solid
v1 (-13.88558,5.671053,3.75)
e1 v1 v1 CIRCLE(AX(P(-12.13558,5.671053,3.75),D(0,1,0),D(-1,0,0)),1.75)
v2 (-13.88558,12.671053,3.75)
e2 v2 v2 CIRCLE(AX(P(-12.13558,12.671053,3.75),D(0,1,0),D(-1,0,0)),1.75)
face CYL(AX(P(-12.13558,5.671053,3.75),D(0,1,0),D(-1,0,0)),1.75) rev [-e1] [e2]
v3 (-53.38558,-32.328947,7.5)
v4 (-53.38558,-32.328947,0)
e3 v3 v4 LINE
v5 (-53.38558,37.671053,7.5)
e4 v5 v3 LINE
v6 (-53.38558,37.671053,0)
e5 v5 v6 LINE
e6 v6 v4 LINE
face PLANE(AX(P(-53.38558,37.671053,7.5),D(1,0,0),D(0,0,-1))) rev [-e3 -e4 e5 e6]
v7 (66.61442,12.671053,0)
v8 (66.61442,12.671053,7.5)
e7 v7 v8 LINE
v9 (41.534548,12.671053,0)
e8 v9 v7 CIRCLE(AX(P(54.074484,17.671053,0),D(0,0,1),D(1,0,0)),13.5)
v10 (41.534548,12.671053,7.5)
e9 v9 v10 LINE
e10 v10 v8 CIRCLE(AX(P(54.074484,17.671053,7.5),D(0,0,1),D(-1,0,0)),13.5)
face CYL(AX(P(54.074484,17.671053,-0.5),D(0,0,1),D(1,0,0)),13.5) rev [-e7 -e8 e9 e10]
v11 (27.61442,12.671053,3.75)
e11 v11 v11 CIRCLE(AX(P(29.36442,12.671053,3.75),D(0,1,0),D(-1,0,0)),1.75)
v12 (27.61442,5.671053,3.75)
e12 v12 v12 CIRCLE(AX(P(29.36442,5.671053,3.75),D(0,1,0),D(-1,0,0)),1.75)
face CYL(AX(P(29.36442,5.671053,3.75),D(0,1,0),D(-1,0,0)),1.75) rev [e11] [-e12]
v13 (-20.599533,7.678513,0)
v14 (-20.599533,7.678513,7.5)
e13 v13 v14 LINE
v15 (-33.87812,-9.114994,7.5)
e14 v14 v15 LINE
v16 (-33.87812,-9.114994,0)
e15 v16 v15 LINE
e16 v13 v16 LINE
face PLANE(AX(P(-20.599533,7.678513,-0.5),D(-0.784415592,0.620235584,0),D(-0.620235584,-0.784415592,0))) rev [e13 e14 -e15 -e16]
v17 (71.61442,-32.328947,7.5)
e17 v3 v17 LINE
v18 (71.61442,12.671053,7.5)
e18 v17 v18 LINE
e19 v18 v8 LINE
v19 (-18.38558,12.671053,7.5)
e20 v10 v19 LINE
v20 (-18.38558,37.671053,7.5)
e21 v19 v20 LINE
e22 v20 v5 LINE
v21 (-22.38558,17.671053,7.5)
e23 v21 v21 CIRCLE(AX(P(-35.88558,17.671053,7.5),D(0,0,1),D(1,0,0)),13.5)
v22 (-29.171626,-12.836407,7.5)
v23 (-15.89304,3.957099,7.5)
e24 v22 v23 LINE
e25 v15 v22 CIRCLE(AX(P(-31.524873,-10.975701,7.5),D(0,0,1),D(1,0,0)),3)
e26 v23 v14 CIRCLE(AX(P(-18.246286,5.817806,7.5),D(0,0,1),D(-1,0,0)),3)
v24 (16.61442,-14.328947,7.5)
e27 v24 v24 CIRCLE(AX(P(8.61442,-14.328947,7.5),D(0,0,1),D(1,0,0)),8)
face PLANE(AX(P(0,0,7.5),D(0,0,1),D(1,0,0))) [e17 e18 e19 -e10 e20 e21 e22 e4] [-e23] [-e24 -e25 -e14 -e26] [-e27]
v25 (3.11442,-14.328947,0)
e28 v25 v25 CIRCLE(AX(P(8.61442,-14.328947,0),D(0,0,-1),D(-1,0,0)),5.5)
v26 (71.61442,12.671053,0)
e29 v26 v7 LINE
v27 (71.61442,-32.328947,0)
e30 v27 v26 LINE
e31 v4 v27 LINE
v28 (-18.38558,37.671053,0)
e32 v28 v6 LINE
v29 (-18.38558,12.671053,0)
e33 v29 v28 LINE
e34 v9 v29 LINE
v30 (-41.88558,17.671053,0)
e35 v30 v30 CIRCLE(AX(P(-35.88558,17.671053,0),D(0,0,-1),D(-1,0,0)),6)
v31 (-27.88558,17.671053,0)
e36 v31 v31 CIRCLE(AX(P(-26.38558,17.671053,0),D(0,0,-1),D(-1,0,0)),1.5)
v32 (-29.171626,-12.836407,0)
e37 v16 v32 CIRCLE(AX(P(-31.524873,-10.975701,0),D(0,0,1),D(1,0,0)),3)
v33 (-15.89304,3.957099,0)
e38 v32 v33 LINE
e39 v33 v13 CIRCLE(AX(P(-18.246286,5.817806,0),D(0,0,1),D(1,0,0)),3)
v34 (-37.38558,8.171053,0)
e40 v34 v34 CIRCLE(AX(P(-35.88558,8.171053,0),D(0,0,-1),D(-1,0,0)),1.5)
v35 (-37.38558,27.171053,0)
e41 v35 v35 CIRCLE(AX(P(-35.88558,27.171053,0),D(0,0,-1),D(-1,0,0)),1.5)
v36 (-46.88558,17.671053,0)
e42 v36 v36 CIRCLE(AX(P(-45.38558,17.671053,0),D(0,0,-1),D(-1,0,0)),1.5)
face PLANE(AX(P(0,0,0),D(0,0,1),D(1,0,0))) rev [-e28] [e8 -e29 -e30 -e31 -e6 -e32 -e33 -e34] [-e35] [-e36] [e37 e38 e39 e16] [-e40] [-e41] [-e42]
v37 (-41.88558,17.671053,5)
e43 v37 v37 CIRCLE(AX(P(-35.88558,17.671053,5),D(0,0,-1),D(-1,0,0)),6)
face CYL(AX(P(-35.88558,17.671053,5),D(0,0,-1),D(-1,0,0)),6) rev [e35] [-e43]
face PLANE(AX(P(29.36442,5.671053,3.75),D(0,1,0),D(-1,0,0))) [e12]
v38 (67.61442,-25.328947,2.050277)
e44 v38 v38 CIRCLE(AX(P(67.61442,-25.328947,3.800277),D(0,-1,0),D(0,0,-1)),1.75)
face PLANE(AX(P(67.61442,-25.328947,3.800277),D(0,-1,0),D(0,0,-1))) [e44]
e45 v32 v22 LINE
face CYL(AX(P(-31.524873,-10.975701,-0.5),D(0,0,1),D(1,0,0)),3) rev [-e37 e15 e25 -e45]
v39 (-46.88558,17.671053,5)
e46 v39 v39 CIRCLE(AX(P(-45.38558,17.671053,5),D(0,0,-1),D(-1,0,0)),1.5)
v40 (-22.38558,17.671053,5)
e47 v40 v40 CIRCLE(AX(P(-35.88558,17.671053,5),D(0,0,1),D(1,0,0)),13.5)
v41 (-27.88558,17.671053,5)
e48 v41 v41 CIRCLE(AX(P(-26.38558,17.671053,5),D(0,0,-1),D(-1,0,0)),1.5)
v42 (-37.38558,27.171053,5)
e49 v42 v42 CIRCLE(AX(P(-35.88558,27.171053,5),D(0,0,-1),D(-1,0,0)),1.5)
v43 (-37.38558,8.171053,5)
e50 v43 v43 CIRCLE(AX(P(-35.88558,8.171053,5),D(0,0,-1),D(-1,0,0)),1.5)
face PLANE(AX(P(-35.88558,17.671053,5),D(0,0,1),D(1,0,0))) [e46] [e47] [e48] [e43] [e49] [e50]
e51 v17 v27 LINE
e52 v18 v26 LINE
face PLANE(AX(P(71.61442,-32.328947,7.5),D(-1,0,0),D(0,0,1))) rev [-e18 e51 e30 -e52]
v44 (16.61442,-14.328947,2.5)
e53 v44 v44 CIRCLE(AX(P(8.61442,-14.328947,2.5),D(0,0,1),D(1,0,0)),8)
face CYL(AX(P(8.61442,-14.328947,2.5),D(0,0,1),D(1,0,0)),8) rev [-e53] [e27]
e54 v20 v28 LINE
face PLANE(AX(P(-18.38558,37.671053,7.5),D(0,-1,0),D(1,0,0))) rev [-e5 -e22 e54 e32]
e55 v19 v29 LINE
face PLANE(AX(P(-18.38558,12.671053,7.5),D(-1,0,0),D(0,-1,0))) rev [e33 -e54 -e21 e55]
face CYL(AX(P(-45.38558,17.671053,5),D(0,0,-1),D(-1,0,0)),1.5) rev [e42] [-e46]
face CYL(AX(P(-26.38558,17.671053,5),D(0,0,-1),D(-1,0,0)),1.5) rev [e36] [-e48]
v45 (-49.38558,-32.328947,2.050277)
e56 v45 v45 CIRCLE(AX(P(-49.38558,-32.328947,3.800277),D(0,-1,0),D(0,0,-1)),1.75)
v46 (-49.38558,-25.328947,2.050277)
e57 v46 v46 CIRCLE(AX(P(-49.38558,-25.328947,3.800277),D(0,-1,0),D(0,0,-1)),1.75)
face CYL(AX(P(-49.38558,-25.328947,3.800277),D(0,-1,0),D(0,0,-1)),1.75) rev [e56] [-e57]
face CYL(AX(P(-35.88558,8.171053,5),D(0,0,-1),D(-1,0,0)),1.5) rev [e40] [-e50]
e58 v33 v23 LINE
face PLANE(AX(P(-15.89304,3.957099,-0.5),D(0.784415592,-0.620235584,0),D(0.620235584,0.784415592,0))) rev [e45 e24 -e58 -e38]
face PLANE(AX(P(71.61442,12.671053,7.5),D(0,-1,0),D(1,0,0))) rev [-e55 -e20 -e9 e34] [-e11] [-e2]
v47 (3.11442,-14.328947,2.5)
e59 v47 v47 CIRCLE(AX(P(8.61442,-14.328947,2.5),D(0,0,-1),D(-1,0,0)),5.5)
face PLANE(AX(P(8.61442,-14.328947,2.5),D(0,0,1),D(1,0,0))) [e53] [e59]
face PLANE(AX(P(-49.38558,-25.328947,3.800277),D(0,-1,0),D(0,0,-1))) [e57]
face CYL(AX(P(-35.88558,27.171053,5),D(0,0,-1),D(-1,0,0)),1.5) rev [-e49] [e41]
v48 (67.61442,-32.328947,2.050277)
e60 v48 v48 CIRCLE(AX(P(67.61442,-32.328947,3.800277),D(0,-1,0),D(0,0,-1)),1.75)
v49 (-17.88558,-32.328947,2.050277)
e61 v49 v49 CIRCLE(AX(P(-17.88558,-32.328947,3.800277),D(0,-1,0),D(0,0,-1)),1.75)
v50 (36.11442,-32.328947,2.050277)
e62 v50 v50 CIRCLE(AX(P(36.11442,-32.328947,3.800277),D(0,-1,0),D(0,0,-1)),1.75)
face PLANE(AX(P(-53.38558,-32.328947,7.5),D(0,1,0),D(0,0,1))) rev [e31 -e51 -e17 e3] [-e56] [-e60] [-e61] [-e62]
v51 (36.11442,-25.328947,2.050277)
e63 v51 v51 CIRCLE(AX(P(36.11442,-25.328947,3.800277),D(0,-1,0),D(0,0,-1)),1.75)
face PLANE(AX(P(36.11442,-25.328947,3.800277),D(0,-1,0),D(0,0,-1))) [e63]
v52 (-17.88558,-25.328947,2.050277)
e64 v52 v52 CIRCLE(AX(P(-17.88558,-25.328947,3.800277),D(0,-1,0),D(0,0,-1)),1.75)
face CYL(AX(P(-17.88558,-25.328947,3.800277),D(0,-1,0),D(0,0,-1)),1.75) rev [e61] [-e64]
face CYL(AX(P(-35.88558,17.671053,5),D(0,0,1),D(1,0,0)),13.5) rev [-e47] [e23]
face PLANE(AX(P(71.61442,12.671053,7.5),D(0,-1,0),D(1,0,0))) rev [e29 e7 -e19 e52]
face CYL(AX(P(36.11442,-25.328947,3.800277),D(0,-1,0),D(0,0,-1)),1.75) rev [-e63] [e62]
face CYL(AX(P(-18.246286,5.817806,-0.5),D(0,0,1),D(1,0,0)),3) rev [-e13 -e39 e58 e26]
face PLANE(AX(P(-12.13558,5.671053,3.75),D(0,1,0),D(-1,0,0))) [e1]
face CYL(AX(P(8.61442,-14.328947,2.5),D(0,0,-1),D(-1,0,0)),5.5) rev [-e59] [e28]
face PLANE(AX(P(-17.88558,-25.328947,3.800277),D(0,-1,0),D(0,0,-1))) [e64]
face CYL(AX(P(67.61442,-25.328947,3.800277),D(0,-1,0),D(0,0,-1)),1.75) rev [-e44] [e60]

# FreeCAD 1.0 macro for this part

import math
import FreeCAD as App
import Part
import Sketcher

V = App.Vector
Q = App.Units.Quantity

doc = App.newDocument("Part")
body = doc.addObject("PartDesign::Body", "Body")

sketch1 = body.newObject("Sketcher::SketchObject", "Sketch")
sketch1.AttachmentSupport = (doc.getObject("XY_Plane"), [""])
sketch1.MapMode = "FlatFace"
sketch1.addGeometry([
    Part.LineSegment(V(-53, 38, 0), V(-53, -32, 0)),
    Part.LineSegment(V(-53, -32, 0), V(72, -32, 0)),
    Part.LineSegment(V(72, -32, 0), V(72, 13, 0)),
    Part.LineSegment(V(72, 13, 0), V(-18, 13, 0)),
    Part.LineSegment(V(-18, 13, 0), V(-18, 38, 0)),
    Part.LineSegment(V(-18, 38, 0), V(-53, 38, 0)),
], False)
sketch1.addConstraint([
    Sketcher.Constraint("Coincident", 0, 2, 1, 1),
    Sketcher.Constraint("Coincident", 1, 2, 2, 1),
    Sketcher.Constraint("Coincident", 2, 2, 3, 1),
    Sketcher.Constraint("Coincident", 3, 2, 4, 1),
    Sketcher.Constraint("Coincident", 4, 2, 5, 1),
    Sketcher.Constraint("Coincident", 5, 2, 0, 1),
    Sketcher.Constraint("Vertical", 0),
    Sketcher.Constraint("Horizontal", 1),
    Sketcher.Constraint("Vertical", 2),
    Sketcher.Constraint("Horizontal", 3),
    Sketcher.Constraint("Vertical", 4),
    Sketcher.Constraint("Horizontal", 5),
    Sketcher.Constraint("DistanceX", 1, 1, 1, 2, Q("125 mm")),
    Sketcher.Constraint("DistanceX", 3, 2, 3, 1, Q("90 mm")),
    Sketcher.Constraint("DistanceY", 0, 2, 0, 1, Q("70 mm")),
    Sketcher.Constraint("DistanceY", 2, 1, 2, 2, Q("45 mm")),
    Sketcher.Constraint("DistanceX", 0, 2, -1, 1, Q("53.38558 mm")),
    Sketcher.Constraint("DistanceY", 0, 2, -1, 1, Q("32.328947 mm")),
])
pad1 = body.newObject("PartDesign::Pad", "Pad")
pad1.Profile = sketch1
pad1.Length = 7.5

sketch2 = body.newObject("Sketcher::SketchObject", "Sketch001")
sketch2.AttachmentSupport = (doc.getObject("XY_Plane"), [""])
sketch2.MapMode = "FlatFace"
sketch2.AttachmentOffset = App.Placement(V(0, 0, 7.5), App.Rotation())
sketch2.addGeometry([
    Part.LineSegment(V(66.6, 12.7, 0), V(41.5, 12.7, 0)),
    Part.ArcOfCircle(Part.Circle(V(54.1, 17.7, 0), V(0, 0, 1), 13.5), math.radians(-158), math.radians(-22)),
    Part.LineSegment(V(-20.6, 7.7, 0), V(-33.9, -9.1, 0)),
    Part.ArcOfCircle(Part.Circle(V(-31.5, -11, 0), V(0, 0, 1), 3), math.radians(142), math.radians(322)),
    Part.LineSegment(V(-29.2, -12.8, 0), V(-15.9, 4, 0)),
    Part.ArcOfCircle(Part.Circle(V(-18.2, 5.8, 0), V(0, 0, 1), 3), math.radians(-38), math.radians(142)),
], False)
sketch2.addConstraint([
    Sketcher.Constraint("Coincident", 0, 1, 1, 2),
    Sketcher.Constraint("Coincident", 1, 1, 0, 2),
    Sketcher.Constraint("Tangent", 2, 2, 3, 1),
    Sketcher.Constraint("Tangent", 3, 2, 4, 1),
    Sketcher.Constraint("Tangent", 4, 2, 5, 1),
    Sketcher.Constraint("Tangent", 5, 2, 2, 1),
    Sketcher.Constraint("Horizontal", 0),
    Sketcher.Constraint("Equal", 3, 5),
    Sketcher.Constraint("Radius", 3, Q("3 mm")),
    Sketcher.Constraint("Radius", 1, Q("13.5 mm")),
    Sketcher.Constraint("DistanceY", 0, 1, 1, 3, Q("5 mm")),
    Sketcher.Constraint("DistanceY", 3, 3, -1, 1, Q("10.975701 mm")),
    Sketcher.Constraint("DistanceY", -1, 1, 4, 2, Q("3.957099 mm")),
    Sketcher.Constraint("Distance", 2, Q("21.40894 mm")),
    Sketcher.Constraint("DistanceX", -1, 1, 0, 1, Q("66.61442 mm")),
    Sketcher.Constraint("DistanceX", 2, 2, -1, 1, Q("33.87812 mm")),
    Sketcher.Constraint("DistanceY", 3, 2, 1, 1, Q("25.50746 mm")),
])
pocket1 = body.newObject("PartDesign::Pocket", "Pocket")
pocket1.Profile = sketch2
pocket1.Length = 8

sketch3 = body.newObject("Sketcher::SketchObject", "Sketch002")
sketch3.AttachmentSupport = (doc.getObject("XY_Plane"), [""])
sketch3.MapMode = "FlatFace"
sketch3.AttachmentOffset = App.Placement(V(0, 0, 7.5), App.Rotation())
sketch3.addGeometry(Part.Circle(V(9, -14, 0), V(0, 0, 1), 8), False)
sketch3.addConstraint([
    Sketcher.Constraint("Diameter", 0, Q("16 mm")),
    Sketcher.Constraint("DistanceX", -1, 1, 0, 3, Q("8.61442 mm")),
    Sketcher.Constraint("DistanceY", 0, 3, -1, 1, Q("14.328947 mm")),
])
pocket2 = body.newObject("PartDesign::Pocket", "Pocket001")
pocket2.Profile = sketch3
pocket2.Length = 5

sketch4 = body.newObject("Sketcher::SketchObject", "Sketch003")
sketch4.AttachmentSupport = (doc.getObject("XY_Plane"), [""])
sketch4.MapMode = "FlatFace"
sketch4.addGeometry(Part.Circle(V(9, -14, 0), V(0, 0, 1), 6), False)
sketch4.addConstraint([
    Sketcher.Constraint("Diameter", 0, Q("11 mm")),
    Sketcher.Constraint("DistanceX", -1, 1, 0, 3, Q("8.61442 mm")),
    Sketcher.Constraint("DistanceY", 0, 3, -1, 1, Q("14.328947 mm")),
])
pocket3 = body.newObject("PartDesign::Pocket", "Pocket002")
pocket3.Profile = sketch4
pocket3.Length = 2.5
pocket3.Reversed = True

sketch5 = body.newObject("Sketcher::SketchObject", "Sketch004")
sketch5.AttachmentSupport = (doc.getObject("XY_Plane"), [""])
sketch5.MapMode = "FlatFace"
sketch5.addGeometry([
    Part.Circle(V(-45.4, 17.7, 0), V(0, 0, 1), 1.5),
    Part.Circle(V(-35.9, 8.2, 0), V(0, 0, 1), 1.5),
    Part.Circle(V(-26.4, 17.7, 0), V(0, 0, 1), 1.5),
    Part.Circle(V(-35.9, 27.2, 0), V(0, 0, 1), 1.5),
    Part.Circle(V(-35.9, 17.7, 0), V(0, 0, 1), 6),
], False)
sketch5.addConstraint([
    Sketcher.Constraint("Equal", 0, 1),
    Sketcher.Constraint("Equal", 1, 2),
    Sketcher.Constraint("Equal", 2, 3),
    Sketcher.Constraint("Horizontal", 0, 3, 2, 3),
    Sketcher.Constraint("Horizontal", 2, 3, 4, 3),
    Sketcher.Constraint("Vertical", 1, 3, 3, 3),
    Sketcher.Constraint("Vertical", 3, 3, 4, 3),
    Sketcher.Constraint("Diameter", 0, Q("3 mm")),
    Sketcher.Constraint("Diameter", 4, Q("12 mm")),
    Sketcher.Constraint("DistanceX", 0, 3, 2, 3, Q("19 mm")),
    Sketcher.Constraint("DistanceY", 1, 3, 3, 3, Q("19 mm")),
    Sketcher.Constraint("DistanceX", 0, 3, 1, 3, Q("9.5 mm")),
    Sketcher.Constraint("DistanceY", 1, 3, 0, 3, Q("9.5 mm")),
    Sketcher.Constraint("DistanceX", 0, 3, -1, 1, Q("45.38558 mm")),
    Sketcher.Constraint("DistanceY", -1, 1, 0, 3, Q("17.671053 mm")),
])
pocket4 = body.newObject("PartDesign::Pocket", "Pocket003")
pocket4.Profile = sketch5
pocket4.Length = 5
pocket4.Reversed = True

sketch6 = body.newObject("Sketcher::SketchObject", "Sketch005")
sketch6.AttachmentSupport = (doc.getObject("XY_Plane"), [""])
sketch6.MapMode = "FlatFace"
sketch6.AttachmentOffset = App.Placement(V(0, 0, 7.5), App.Rotation())
sketch6.addGeometry(Part.Circle(V(-36, 18, 0), V(0, 0, 1), 14), False)
sketch6.addConstraint([
    Sketcher.Constraint("Diameter", 0, Q("27 mm")),
    Sketcher.Constraint("DistanceX", 0, 3, -1, 1, Q("35.88558 mm")),
    Sketcher.Constraint("DistanceY", -1, 1, 0, 3, Q("17.671053 mm")),
])
pocket5 = body.newObject("PartDesign::Pocket", "Pocket004")
pocket5.Profile = sketch6
pocket5.Length = 2.5

sketch7 = body.newObject("Sketcher::SketchObject", "Sketch006")
sketch7.AttachmentSupport = (doc.getObject("XZ_Plane"), [""])
sketch7.MapMode = "FlatFace"
sketch7.AttachmentOffset = App.Placement(V(0, 0, -12.671053), App.Rotation())
sketch7.addGeometry([
    Part.Circle(V(-12.1, 3.8, 0), V(0, 0, 1), 1.8),
    Part.Circle(V(29.4, 3.8, 0), V(0, 0, 1), 1.8),
], False)
sketch7.addConstraint([
    Sketcher.Constraint("Equal", 0, 1),
    Sketcher.Constraint("Horizontal", 0, 3, 1, 3),
    Sketcher.Constraint("Diameter", 0, Q("3.5 mm")),
    Sketcher.Constraint("DistanceX", 0, 3, 1, 3, Q("41.5 mm")),
    Sketcher.Constraint("DistanceY", -1, 1, 0, 3, Q("3.75 mm")),
    Sketcher.Constraint("DistanceX", 0, 3, -1, 1, Q("12.13558 mm")),
])
pocket6 = body.newObject("PartDesign::Pocket", "Pocket005")
pocket6.Profile = sketch7
pocket6.Length = 7
pocket6.Reversed = True

sketch8 = body.newObject("Sketcher::SketchObject", "Sketch007")
sketch8.AttachmentSupport = (doc.getObject("XZ_Plane"), [""])
sketch8.MapMode = "FlatFace"
sketch8.AttachmentOffset = App.Placement(V(0, 0, 32.328947), App.Rotation())
sketch8.addGeometry([
    Part.Circle(V(-49.4, 3.8, 0), V(0, 0, 1), 1.8),
    Part.Circle(V(-17.9, 3.8, 0), V(0, 0, 1), 1.8),
    Part.Circle(V(36.1, 3.8, 0), V(0, 0, 1), 1.8),
    Part.Circle(V(67.6, 3.8, 0), V(0, 0, 1), 1.8),
], False)
sketch8.addConstraint([
    Sketcher.Constraint("Equal", 0, 1),
    Sketcher.Constraint("Equal", 1, 2),
    Sketcher.Constraint("Equal", 2, 3),
    Sketcher.Constraint("Horizontal", 0, 3, 1, 3),
    Sketcher.Constraint("Horizontal", 1, 3, 2, 3),
    Sketcher.Constraint("Horizontal", 2, 3, 3, 3),
    Sketcher.Constraint("Diameter", 0, Q("3.5 mm")),
    Sketcher.Constraint("DistanceX", 1, 3, 2, 3, Q("54 mm")),
    Sketcher.Constraint("DistanceX", 0, 3, 3, 3, Q("117 mm")),
    Sketcher.Constraint("DistanceX", 0, 3, 1, 3, Q("31.5 mm")),
    Sketcher.Constraint("DistanceX", 0, 3, -1, 1, Q("49.38558 mm")),
    Sketcher.Constraint("DistanceY", -1, 1, 0, 3, Q("3.800277 mm")),
])
pocket7 = body.newObject("PartDesign::Pocket", "Pocket006")
pocket7.Profile = sketch8
pocket7.Length = 7

doc.recompute()
